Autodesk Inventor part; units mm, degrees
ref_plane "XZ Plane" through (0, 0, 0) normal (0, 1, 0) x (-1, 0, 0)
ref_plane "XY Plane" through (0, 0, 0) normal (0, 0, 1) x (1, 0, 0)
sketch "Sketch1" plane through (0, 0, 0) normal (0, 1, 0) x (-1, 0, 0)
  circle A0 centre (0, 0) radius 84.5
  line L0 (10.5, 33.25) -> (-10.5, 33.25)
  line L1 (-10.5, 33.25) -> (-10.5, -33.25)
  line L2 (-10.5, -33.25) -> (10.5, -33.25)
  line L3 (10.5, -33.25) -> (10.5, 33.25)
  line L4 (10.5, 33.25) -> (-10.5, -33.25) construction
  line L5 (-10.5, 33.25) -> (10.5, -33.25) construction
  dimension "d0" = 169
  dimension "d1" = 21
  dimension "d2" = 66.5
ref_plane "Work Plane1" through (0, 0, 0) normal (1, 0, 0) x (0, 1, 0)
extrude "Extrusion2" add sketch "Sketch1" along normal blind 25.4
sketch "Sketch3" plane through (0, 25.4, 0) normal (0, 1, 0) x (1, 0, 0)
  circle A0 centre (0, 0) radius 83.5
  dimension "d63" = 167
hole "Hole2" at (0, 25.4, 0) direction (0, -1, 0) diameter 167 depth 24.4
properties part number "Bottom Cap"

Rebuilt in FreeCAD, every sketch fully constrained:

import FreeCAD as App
import Part
import Sketcher

V = App.Vector
Q = App.Units.Quantity

doc = App.newDocument("Part")
body = doc.addObject("PartDesign::Body", "Body")

# Sketch on XZ plane
sketch1 = body.newObject("Sketcher::SketchObject", "Sketch")
sketch1.AttachmentSupport = (doc.getObject("XZ_Plane"), [""])
sketch1.MapMode = "FlatFace"
sketch1.addGeometry([
    Part.Circle(V(0, 0, 0), V(0, 0, 1), 84.5),  # 0
    Part.LineSegment(V(10.5, 33.25, 0), V(-10.5, 33.25, 0)),  # 1
    Part.LineSegment(V(-10.5, 33.25, 0), V(-10.5, -33.25, 0)),  # 2
    Part.LineSegment(V(-10.5, -33.25, 0), V(10.5, -33.25, 0)),  # 3
    Part.LineSegment(V(10.5, -33.25, 0), V(10.5, 33.25, 0)),  # 4
], False)
sketch1.addConstraint([
    Sketcher.Constraint("Coincident", 1, 2, 2, 1),
    Sketcher.Constraint("Coincident", 2, 2, 3, 1),
    Sketcher.Constraint("Coincident", 3, 2, 4, 1),
    Sketcher.Constraint("Coincident", 4, 2, 1, 1),
    Sketcher.Constraint("Horizontal", 1),
    Sketcher.Constraint("Vertical", 2),
    Sketcher.Constraint("Horizontal", 3),
    Sketcher.Constraint("Vertical", 4),
    Sketcher.Constraint("Coincident", 0, 3, -1, 1),
    Sketcher.Constraint("Symmetric", 1, 2, 3, 2, -1, 1),
    Sketcher.Constraint("Diameter", 0, Q("169 mm")),
    Sketcher.Constraint("DistanceX", 1, 2, 1, 1, Q("21 mm")),
    Sketcher.Constraint("DistanceY", 2, 2, 2, 1, Q("66.5 mm")),
])
pad1 = body.newObject("PartDesign::Pad", "Pad")
pad1.Profile = sketch1
pad1.Length = 25.4
pad1.Reversed = True

# Sketch on XZ plane
sketch2 = body.newObject("Sketcher::SketchObject", "Sketch001")
sketch2.AttachmentSupport = (doc.getObject("XZ_Plane"), [""])
sketch2.MapMode = "FlatFace"
sketch2.AttachmentOffset = App.Placement(V(0, 0, -25.4), App.Rotation())
sketch2.addGeometry(Part.Circle(V(0, 0, 0), V(0, 0, 1), 83.5), False)
sketch2.addConstraint([
    Sketcher.Constraint("Coincident", 0, 3, -1, 1),
    Sketcher.Constraint("Diameter", 0, Q("167 mm")),
])
doc.recompute()
hole = body.newObject("PartDesign::Hole", "Hole")
hole.Profile = sketch2
hole.ThreadType = "None"
hole.Diameter = 167
hole.DepthType = "Dimension"
hole.Depth = 24.4
hole.DrillPoint = "Flat"
hole.Reversed = True

doc.recompute()
